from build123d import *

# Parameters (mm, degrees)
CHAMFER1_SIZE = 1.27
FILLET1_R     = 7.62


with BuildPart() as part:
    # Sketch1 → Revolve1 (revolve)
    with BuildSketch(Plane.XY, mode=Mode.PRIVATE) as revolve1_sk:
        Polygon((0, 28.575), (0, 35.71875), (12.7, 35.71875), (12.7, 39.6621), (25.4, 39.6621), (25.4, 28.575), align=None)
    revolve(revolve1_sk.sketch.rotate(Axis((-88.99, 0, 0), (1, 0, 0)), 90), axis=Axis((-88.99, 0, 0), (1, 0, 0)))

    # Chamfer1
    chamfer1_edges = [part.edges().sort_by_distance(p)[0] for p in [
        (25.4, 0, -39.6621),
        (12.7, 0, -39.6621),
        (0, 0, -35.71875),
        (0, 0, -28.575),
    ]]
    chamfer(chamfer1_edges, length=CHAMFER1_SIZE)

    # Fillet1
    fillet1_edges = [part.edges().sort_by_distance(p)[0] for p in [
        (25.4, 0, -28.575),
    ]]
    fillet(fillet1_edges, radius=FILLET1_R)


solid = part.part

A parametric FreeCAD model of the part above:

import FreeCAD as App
import Part
import Sketcher
Q = App.Units.Quantity


def edges_at(feature, points):
    """Names of the edges that pass closest to the given points."""
    edges = feature.Shape.Edges
    near = lambda p: min(range(len(edges)), key=lambda i: edges[i].distToShape(Part.Vertex(*p))[0])
    return sorted({f"Edge{near(p) + 1}" for p in points})


def add_polygon(sketch, points):
    """Adds a closed chain of lines whose ends are joined by coincident constraints."""
    first, n = sketch.GeometryCount, len(points)
    for a, b in zip(points, points[1:] + points[:1]):
        sketch.addGeometry(Part.LineSegment(App.Vector(*a, 0), App.Vector(*b, 0)), False)
    for i in range(n):
        sketch.addConstraint(Sketcher.Constraint("Coincident", first + i, 2, first + (i + 1) % n, 1))

doc = App.newDocument("Part")
body = doc.addObject("PartDesign::Body", "Body")

# Sketch on XY plane
sketch1 = body.newObject("Sketcher::SketchObject", "Sketch")
sketch1.AttachmentSupport = (doc.getObject("XY_Plane"), [""])
sketch1.MapMode = "FlatFace"
add_polygon(sketch1, [(0, 35.7), (0, 28.6), (25.4, 28.6), (25.4, 39.7), (12.7, 39.7), (12.7, 35.7)])  # lines 0-5
sketch1.addConstraint(Sketcher.Constraint("Vertical", 0))
sketch1.addConstraint(Sketcher.Constraint("Horizontal", 1))
sketch1.addConstraint(Sketcher.Constraint("Vertical", 2))
sketch1.addConstraint(Sketcher.Constraint("Horizontal", 3))
sketch1.addConstraint(Sketcher.Constraint("Vertical", 4))
sketch1.addConstraint(Sketcher.Constraint("Horizontal", 5))
sketch1.addConstraint(Sketcher.Constraint("PointOnObject", 0, 2, -2))
sketch1.addConstraint(Sketcher.Constraint("Equal", 3, 5))
sketch1.addConstraint(Sketcher.Constraint("DistanceX", 1, 1, 1, 2, Q("1 in")))
sketch1.addConstraint(Sketcher.Constraint("DistanceY", 0, 2, 0, 1, Q("0.28125 in")))
sketch1.addConstraint(Sketcher.Constraint("DistanceY", 2, 1, 2, 2, Q("0.4365 in")))
sketch1.addConstraint(Sketcher.Constraint("DistanceY", -1, 1, 0, 2, Q("1.125 in")))
revolution = body.newObject("PartDesign::Revolution", "Revolution")
revolution.Profile = sketch1
revolution.ReferenceAxis = (sketch1, ["H_Axis"])
revolution.Angle = 360
doc.recompute()

chamfer = body.newObject("PartDesign::Chamfer", "Chamfer")
chamfer.Base = (revolution, edges_at(revolution, [
    (25.4, 0, -39.662),
    (12.7, 0, -39.662),
    (0, 0, -35.719),
    (0, 0, -28.575),
]))
chamfer.Size = Q("0.05 in")
doc.recompute()

fillet = body.newObject("PartDesign::Fillet", "Fillet")
fillet.Base = (chamfer, edges_at(chamfer, [(25.4, 0, -28.575)]))
fillet.Radius = Q("0.3 in")

doc.recompute()
